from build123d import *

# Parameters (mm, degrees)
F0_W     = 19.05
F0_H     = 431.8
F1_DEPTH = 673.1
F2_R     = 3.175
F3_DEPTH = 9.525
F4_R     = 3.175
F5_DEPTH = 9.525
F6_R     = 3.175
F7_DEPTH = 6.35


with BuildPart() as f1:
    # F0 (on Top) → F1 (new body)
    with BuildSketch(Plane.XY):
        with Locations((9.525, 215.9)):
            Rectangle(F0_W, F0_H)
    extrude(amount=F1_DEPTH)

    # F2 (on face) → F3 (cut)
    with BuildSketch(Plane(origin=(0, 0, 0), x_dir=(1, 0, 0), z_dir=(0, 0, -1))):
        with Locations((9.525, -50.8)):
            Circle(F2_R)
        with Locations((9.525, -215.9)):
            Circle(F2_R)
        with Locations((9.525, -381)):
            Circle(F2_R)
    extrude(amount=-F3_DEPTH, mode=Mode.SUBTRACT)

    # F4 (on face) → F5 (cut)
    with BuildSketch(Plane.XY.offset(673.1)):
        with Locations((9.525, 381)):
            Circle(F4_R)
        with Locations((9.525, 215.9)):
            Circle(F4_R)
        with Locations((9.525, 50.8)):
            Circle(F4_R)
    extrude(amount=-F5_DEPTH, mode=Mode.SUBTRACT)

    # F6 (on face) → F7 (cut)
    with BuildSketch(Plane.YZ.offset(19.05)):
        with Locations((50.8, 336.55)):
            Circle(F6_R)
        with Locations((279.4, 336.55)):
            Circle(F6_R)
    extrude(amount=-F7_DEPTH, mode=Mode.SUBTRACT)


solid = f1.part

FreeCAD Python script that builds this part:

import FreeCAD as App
import Part
import Sketcher
Q = App.Units.Quantity

doc = App.newDocument("Part")
body = doc.addObject("PartDesign::Body", "Body")

# Sketch on XY plane
sketch1 = doc.addObject("Sketcher::SketchObject", "Sketch")
body.addObject(sketch1)
sketch1.AttachmentSupport = (doc.XY_Plane, [""])
sketch1.MapMode = "FlatFace"
sketch1.addGeometry([
    Part.LineSegment(App.Vector(0, 432, 0), App.Vector(0, 0, 0)),
    Part.LineSegment(App.Vector(0, 0, 0), App.Vector(19, 0, 0)),
    Part.LineSegment(App.Vector(19, 0, 0), App.Vector(19, 432, 0)),
    Part.LineSegment(App.Vector(19, 432, 0), App.Vector(0, 432, 0)),
], False)
sketch1.addConstraint([
    Sketcher.Constraint("Coincident", 0, 2, 1, 1),
    Sketcher.Constraint("Coincident", 1, 2, 2, 1),
    Sketcher.Constraint("Coincident", 2, 2, 3, 1),
    Sketcher.Constraint("Coincident", 3, 2, 0, 1),
    Sketcher.Constraint("Vertical", 0),
    Sketcher.Constraint("Horizontal", 1),
    Sketcher.Constraint("Vertical", 2),
    Sketcher.Constraint("Horizontal", 3),
    Sketcher.Constraint("Coincident", 0, 2, -1, 1),
    Sketcher.Constraint("DistanceY", 0, 2, 0, 1, Q("17 in")),
    Sketcher.Constraint("DistanceX", 1, 1, 1, 2, Q("0.75 in")),
])
pad1 = doc.addObject("PartDesign::Pad", "Pad")
body.addObject(pad1)
pad1.Profile = sketch1
pad1.Length = Q("26.5 in")

# Sketch on XY plane
sketch2 = doc.addObject("Sketcher::SketchObject", "Sketch001")
body.addObject(sketch2)
sketch2.AttachmentSupport = (doc.XY_Plane, [""])
sketch2.MapMode = "FlatFace"
sketch2.addGeometry([
    Part.Circle(App.Vector(9.5, 50.8, 0), App.Vector(0, 0, 1), 3.2),
    Part.Circle(App.Vector(9.5, 215.9, 0), App.Vector(0, 0, 1), 3.2),
    Part.Circle(App.Vector(9.5, 381, 0), App.Vector(0, 0, 1), 3.2),
], False)
sketch2.addConstraint([
    Sketcher.Constraint("Equal", 0, 1),
    Sketcher.Constraint("Equal", 1, 2),
    Sketcher.Constraint("Vertical", 0, 3, 1, 3),
    Sketcher.Constraint("Vertical", 1, 3, 2, 3),
    Sketcher.Constraint("Diameter", 0, Q("0.25 in")),
    Sketcher.Constraint("DistanceY", -1, 1, 0, 3, Q("2 in")),
    Sketcher.Constraint("DistanceY", -1, 1, 2, 3, Q("15 in")),
    Sketcher.Constraint("DistanceY", -1, 1, 1, 3, Q("8.5 in")),
    Sketcher.Constraint("DistanceX", -1, 1, 0, 3, Q("0.375 in")),
])
pocket1 = doc.addObject("PartDesign::Pocket", "Pocket")
body.addObject(pocket1)
pocket1.Profile = sketch2
pocket1.Length = Q("0.375 in")
pocket1.Reversed = True

# Sketch on XY plane
sketch3 = doc.addObject("Sketcher::SketchObject", "Sketch002")
body.addObject(sketch3)
sketch3.AttachmentSupport = (doc.XY_Plane, [""])
sketch3.MapMode = "FlatFace"
sketch3.AttachmentOffset = App.Placement(App.Vector(0, 0, 26.5 * 25.4), App.Rotation())
sketch3.addGeometry([
    Part.Circle(App.Vector(9.5, 381, 0), App.Vector(0, 0, 1), 3.2),
    Part.Circle(App.Vector(9.5, 215.9, 0), App.Vector(0, 0, 1), 3.2),
    Part.Circle(App.Vector(9.5, 50.8, 0), App.Vector(0, 0, 1), 3.2),
], False)
sketch3.addConstraint([
    Sketcher.Constraint("Equal", 0, 1),
    Sketcher.Constraint("Equal", 1, 2),
    Sketcher.Constraint("Vertical", 0, 3, 1, 3),
    Sketcher.Constraint("Vertical", 1, 3, 2, 3),
    Sketcher.Constraint("Diameter", 0, Q("0.25 in")),
    Sketcher.Constraint("DistanceY", -1, 1, 0, 3, Q("15 in")),
    Sketcher.Constraint("DistanceY", -1, 1, 2, 3, Q("2 in")),
    Sketcher.Constraint("DistanceY", -1, 1, 1, 3, Q("8.5 in")),
    Sketcher.Constraint("DistanceX", -1, 1, 0, 3, Q("0.375 in")),
])
pocket2 = doc.addObject("PartDesign::Pocket", "Pocket001")
body.addObject(pocket2)
pocket2.Profile = sketch3
pocket2.Length = Q("0.375 in")

# Sketch on YZ plane
sketch4 = doc.addObject("Sketcher::SketchObject", "Sketch003")
body.addObject(sketch4)
sketch4.AttachmentSupport = (doc.YZ_Plane, [""])
sketch4.MapMode = "FlatFace"
sketch4.AttachmentOffset = App.Placement(App.Vector(0, 0, 0.75 * 25.4), App.Rotation())
sketch4.addGeometry([
    Part.Circle(App.Vector(50.8, 336.6, 0), App.Vector(0, 0, 1), 3.2),
    Part.Circle(App.Vector(279.4, 336.6, 0), App.Vector(0, 0, 1), 3.2),
], False)
sketch4.addConstraint([
    Sketcher.Constraint("Equal", 0, 1),
    Sketcher.Constraint("Horizontal", 0, 3, 1, 3),
    Sketcher.Constraint("Diameter", 0, Q("0.25 in")),
    Sketcher.Constraint("DistanceX", -1, 1, 0, 3, Q("2 in")),
    Sketcher.Constraint("DistanceX", -1, 1, 1, 3, Q("11 in")),
    Sketcher.Constraint("DistanceY", -1, 1, 0, 3, Q("13.25 in")),
])
pocket3 = doc.addObject("PartDesign::Pocket", "Pocket002")
body.addObject(pocket3)
pocket3.Profile = sketch4
pocket3.Length = Q("0.25 in")

doc.recompute()
